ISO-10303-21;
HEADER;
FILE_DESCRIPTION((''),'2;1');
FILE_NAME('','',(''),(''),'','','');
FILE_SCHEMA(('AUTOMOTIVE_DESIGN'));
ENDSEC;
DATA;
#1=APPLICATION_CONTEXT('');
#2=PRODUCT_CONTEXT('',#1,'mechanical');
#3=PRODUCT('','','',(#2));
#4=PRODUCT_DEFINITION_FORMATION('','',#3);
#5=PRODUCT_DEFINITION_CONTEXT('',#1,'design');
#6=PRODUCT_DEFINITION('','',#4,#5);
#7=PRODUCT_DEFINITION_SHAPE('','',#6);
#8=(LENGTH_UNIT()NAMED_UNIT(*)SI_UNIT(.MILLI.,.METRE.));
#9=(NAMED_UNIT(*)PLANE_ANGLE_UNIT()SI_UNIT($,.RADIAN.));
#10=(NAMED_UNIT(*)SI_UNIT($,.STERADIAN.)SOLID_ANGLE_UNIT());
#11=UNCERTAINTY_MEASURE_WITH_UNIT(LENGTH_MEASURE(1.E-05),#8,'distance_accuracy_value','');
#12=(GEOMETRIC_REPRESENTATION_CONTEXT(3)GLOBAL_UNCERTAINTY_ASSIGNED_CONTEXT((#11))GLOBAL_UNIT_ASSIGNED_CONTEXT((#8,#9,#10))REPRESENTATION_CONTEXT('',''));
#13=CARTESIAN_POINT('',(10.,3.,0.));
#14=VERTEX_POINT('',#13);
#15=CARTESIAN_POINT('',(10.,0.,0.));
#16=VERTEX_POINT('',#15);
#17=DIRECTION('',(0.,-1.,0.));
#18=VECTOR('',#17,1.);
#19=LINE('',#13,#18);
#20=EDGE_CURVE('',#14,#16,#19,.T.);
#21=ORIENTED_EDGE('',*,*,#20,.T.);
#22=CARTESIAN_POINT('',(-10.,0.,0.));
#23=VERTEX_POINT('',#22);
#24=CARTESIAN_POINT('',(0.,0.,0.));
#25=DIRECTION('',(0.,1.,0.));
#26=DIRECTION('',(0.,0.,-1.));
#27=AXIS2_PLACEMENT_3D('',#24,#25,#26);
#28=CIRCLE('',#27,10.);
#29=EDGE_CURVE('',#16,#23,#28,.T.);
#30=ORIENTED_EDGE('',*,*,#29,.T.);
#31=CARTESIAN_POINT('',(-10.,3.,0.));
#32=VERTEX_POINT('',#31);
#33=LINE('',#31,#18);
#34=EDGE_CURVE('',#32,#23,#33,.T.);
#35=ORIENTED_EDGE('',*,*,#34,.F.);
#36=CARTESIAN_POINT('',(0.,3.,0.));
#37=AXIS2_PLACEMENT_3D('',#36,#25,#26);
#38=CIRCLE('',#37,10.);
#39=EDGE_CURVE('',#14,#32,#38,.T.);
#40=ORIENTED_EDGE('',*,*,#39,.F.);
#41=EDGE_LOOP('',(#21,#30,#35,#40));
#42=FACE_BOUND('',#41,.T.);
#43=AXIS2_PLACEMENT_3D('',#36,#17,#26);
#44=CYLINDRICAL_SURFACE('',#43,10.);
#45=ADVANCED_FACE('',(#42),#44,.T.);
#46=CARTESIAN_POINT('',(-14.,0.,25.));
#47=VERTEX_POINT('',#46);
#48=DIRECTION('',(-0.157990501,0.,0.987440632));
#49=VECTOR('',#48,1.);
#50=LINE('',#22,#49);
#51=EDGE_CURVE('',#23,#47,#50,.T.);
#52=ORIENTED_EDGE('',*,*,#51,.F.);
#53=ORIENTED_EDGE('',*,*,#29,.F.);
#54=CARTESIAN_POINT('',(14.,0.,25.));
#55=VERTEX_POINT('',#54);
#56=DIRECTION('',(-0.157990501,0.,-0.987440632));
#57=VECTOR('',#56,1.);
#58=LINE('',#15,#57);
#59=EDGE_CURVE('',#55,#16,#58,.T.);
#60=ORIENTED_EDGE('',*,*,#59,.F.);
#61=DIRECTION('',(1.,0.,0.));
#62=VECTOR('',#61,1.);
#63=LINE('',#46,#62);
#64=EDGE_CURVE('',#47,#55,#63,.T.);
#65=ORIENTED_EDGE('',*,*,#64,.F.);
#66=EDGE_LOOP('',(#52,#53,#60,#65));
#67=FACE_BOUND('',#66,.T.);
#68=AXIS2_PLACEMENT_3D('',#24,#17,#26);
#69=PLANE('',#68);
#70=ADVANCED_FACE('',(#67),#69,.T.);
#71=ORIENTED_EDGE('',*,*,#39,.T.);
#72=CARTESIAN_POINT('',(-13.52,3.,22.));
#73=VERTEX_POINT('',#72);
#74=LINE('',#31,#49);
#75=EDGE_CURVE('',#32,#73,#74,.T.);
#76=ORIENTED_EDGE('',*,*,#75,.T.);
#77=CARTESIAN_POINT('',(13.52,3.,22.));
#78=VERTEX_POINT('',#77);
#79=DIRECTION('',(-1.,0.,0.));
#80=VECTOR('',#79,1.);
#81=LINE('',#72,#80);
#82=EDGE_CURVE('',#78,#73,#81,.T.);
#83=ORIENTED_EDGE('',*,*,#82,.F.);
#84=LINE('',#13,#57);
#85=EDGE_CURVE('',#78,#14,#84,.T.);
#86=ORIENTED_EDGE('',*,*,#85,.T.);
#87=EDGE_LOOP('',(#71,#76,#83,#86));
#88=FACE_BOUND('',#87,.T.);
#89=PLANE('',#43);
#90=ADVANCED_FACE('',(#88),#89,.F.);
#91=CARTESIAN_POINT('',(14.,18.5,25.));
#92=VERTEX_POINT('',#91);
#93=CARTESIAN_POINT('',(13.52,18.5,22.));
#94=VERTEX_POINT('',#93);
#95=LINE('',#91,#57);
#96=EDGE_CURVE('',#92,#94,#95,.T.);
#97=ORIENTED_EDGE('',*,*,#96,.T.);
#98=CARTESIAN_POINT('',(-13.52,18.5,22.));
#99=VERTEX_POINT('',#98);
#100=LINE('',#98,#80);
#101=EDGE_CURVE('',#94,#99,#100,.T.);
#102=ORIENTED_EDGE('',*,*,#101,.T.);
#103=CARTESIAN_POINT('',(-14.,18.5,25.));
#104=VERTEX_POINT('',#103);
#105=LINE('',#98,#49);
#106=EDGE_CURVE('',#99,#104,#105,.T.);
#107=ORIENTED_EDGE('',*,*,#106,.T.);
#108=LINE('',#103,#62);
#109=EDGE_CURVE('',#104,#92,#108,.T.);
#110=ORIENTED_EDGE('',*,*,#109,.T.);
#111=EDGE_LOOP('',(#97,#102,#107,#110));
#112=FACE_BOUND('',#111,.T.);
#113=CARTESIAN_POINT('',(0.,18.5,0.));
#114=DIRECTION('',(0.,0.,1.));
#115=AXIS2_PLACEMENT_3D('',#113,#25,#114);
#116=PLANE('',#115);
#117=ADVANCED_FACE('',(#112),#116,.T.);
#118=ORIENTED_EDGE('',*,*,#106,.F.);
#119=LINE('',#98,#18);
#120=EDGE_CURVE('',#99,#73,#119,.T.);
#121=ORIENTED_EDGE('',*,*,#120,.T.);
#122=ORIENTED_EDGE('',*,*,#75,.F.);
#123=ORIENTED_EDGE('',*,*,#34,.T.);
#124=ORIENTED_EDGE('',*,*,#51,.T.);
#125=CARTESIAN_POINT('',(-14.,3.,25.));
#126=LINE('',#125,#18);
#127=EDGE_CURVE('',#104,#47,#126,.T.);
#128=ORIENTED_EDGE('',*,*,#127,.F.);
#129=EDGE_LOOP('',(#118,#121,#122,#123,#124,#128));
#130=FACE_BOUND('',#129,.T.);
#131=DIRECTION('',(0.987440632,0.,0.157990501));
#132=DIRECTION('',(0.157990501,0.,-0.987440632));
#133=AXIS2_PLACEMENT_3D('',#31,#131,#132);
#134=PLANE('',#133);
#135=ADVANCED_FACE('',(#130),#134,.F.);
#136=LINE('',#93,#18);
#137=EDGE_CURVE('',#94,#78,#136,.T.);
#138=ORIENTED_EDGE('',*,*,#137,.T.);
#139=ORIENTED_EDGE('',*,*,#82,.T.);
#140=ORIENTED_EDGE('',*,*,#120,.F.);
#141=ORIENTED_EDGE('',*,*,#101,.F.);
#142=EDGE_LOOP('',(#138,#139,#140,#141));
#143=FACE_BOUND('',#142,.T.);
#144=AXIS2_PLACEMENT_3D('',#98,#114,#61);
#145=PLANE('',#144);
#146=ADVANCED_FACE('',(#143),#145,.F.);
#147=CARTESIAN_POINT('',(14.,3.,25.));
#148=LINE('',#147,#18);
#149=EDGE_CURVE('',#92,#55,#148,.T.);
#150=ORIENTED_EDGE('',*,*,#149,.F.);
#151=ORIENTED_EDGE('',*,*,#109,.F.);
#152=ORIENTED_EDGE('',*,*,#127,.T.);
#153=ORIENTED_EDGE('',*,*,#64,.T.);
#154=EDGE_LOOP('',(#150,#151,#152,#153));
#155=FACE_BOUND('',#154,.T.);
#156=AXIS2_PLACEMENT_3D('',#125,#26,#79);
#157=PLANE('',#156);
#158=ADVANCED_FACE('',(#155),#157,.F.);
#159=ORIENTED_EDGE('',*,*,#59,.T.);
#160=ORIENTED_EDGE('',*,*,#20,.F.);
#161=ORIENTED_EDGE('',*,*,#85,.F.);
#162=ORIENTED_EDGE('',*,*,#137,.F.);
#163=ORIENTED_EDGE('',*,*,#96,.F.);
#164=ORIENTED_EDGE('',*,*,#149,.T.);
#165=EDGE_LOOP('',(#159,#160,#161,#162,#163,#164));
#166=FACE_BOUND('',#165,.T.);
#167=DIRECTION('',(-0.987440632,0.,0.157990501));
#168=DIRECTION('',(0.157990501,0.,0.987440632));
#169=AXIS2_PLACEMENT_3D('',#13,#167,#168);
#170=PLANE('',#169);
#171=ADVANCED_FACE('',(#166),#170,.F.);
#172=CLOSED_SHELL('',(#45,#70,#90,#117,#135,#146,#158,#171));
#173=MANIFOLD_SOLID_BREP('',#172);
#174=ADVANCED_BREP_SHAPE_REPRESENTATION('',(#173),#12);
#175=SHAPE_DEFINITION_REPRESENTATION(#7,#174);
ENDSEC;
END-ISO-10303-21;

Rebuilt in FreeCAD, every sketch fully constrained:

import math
import FreeCAD as App
import Part
import Sketcher
Q = App.Units.Quantity


def add_polygon(sketch, points):
    """Adds a closed chain of lines whose ends are joined by coincident constraints."""
    first, n = sketch.GeometryCount, len(points)
    for a, b in zip(points, points[1:] + points[:1]):
        sketch.addGeometry(Part.LineSegment(App.Vector(*a, 0), App.Vector(*b, 0)), False)
    for i in range(n):
        sketch.addConstraint(Sketcher.Constraint("Coincident", first + i, 2, first + (i + 1) % n, 1))

doc = App.newDocument("Part")
params = doc.addObject("Spreadsheet::Sheet", "Params")
for row, (alias, value) in enumerate([
    ("sketch1_radius", "10 mm"),
    ("sketch1_width", "28 mm"),
    ("pad1_length", "3 mm"),
    ("sketch2_width", "28 mm"),
    ("sketch2_width2", "27.04 mm"),
    ("pad2_length", "15.5 mm"),
], start=1):
    params.set(f"A{row}", alias)
    params.set(f"B{row}", "=" + value)
    params.setAlias(f"B{row}", alias)

body = doc.addObject("PartDesign::Body", "Body")

# Sketch on XZ plane
sketch1 = body.newObject("Sketcher::SketchObject", "Sketch")
sketch1.AttachmentSupport = (doc.getObject("XZ_Plane"), [""])
sketch1.MapMode = "FlatFace"
sketch1.addGeometry([
    Part.LineSegment(App.Vector(-10, 0, 0), App.Vector(-14, 25, 0)),
    Part.LineSegment(App.Vector(-14, 25, 0), App.Vector(14, 25, 0)),
    Part.LineSegment(App.Vector(14, 25, 0), App.Vector(10, 0, 0)),
    Part.ArcOfCircle(Part.Circle(App.Vector(0, 0, 0), App.Vector(0, 0, 1), 10), math.radians(180), math.radians(360)),
], False)
sketch1.addConstraint([
    Sketcher.Constraint("Coincident", 0, 2, 1, 1),
    Sketcher.Constraint("Coincident", 1, 2, 2, 1),
    Sketcher.Constraint("Coincident", 2, 2, 3, 2),
    Sketcher.Constraint("Coincident", 3, 1, 0, 1),
    Sketcher.Constraint("Horizontal", 1),
    Sketcher.Constraint("Coincident", 3, 3, -1, 1),
    Sketcher.Constraint("PointOnObject", 2, 2, -1),
    Sketcher.Constraint("PointOnObject", 3, 1, -1),
    Sketcher.Constraint("Equal", 0, 2),
    Sketcher.Constraint("Radius", 3, Q("10 mm")),
    Sketcher.Constraint("DistanceX", 1, 1, 1, 2, Q("28 mm")),
    Sketcher.Constraint("DistanceY", -1, 1, 0, 2, Q("25 mm")),
])
sketch1.setExpression("Constraints[9]", "Params.sketch1_radius")
sketch1.setExpression("Constraints[10]", "Params.sketch1_width")
pad1 = body.newObject("PartDesign::Pad", "Pad")
pad1.Profile = sketch1
pad1.setExpression("Length", "Params.pad1_length")
pad1.Reversed = True

# Sketch on XZ plane
sketch2 = body.newObject("Sketcher::SketchObject", "Sketch001")
sketch2.AttachmentSupport = (doc.getObject("XZ_Plane"), [""])
sketch2.MapMode = "FlatFace"
sketch2.AttachmentOffset = App.Placement(App.Vector(0, 0, -3), App.Rotation())
add_polygon(sketch2, [(13.5, 22), (-13.5, 22), (-14, 25), (14, 25)])  # lines 0-3
sketch2.addConstraint([
    Sketcher.Constraint("Horizontal", 0),
    Sketcher.Constraint("Horizontal", 2),
    Sketcher.Constraint("Equal", 1, 3),
    Sketcher.Constraint("DistanceX", 2, 1, 2, 2, Q("28 mm")),
    Sketcher.Constraint("DistanceY", -1, 1, 0, 2, Q("22 mm")),
    Sketcher.Constraint("DistanceX", 1, 2, -1, 1, Q("14 mm")),
    Sketcher.Constraint("DistanceY", -1, 1, 1, 2, Q("25 mm")),
    Sketcher.Constraint("DistanceX", 0, 2, 0, 1, Q("27.04 mm")),
])
sketch2.setExpression("Constraints[7]", "Params.sketch2_width")
sketch2.setExpression("Constraints[11]", "Params.sketch2_width2")
pad2 = body.newObject("PartDesign::Pad", "Pad001")
pad2.Profile = sketch2
pad2.setExpression("Length", "Params.pad2_length")
pad2.Reversed = True

doc.recompute()
